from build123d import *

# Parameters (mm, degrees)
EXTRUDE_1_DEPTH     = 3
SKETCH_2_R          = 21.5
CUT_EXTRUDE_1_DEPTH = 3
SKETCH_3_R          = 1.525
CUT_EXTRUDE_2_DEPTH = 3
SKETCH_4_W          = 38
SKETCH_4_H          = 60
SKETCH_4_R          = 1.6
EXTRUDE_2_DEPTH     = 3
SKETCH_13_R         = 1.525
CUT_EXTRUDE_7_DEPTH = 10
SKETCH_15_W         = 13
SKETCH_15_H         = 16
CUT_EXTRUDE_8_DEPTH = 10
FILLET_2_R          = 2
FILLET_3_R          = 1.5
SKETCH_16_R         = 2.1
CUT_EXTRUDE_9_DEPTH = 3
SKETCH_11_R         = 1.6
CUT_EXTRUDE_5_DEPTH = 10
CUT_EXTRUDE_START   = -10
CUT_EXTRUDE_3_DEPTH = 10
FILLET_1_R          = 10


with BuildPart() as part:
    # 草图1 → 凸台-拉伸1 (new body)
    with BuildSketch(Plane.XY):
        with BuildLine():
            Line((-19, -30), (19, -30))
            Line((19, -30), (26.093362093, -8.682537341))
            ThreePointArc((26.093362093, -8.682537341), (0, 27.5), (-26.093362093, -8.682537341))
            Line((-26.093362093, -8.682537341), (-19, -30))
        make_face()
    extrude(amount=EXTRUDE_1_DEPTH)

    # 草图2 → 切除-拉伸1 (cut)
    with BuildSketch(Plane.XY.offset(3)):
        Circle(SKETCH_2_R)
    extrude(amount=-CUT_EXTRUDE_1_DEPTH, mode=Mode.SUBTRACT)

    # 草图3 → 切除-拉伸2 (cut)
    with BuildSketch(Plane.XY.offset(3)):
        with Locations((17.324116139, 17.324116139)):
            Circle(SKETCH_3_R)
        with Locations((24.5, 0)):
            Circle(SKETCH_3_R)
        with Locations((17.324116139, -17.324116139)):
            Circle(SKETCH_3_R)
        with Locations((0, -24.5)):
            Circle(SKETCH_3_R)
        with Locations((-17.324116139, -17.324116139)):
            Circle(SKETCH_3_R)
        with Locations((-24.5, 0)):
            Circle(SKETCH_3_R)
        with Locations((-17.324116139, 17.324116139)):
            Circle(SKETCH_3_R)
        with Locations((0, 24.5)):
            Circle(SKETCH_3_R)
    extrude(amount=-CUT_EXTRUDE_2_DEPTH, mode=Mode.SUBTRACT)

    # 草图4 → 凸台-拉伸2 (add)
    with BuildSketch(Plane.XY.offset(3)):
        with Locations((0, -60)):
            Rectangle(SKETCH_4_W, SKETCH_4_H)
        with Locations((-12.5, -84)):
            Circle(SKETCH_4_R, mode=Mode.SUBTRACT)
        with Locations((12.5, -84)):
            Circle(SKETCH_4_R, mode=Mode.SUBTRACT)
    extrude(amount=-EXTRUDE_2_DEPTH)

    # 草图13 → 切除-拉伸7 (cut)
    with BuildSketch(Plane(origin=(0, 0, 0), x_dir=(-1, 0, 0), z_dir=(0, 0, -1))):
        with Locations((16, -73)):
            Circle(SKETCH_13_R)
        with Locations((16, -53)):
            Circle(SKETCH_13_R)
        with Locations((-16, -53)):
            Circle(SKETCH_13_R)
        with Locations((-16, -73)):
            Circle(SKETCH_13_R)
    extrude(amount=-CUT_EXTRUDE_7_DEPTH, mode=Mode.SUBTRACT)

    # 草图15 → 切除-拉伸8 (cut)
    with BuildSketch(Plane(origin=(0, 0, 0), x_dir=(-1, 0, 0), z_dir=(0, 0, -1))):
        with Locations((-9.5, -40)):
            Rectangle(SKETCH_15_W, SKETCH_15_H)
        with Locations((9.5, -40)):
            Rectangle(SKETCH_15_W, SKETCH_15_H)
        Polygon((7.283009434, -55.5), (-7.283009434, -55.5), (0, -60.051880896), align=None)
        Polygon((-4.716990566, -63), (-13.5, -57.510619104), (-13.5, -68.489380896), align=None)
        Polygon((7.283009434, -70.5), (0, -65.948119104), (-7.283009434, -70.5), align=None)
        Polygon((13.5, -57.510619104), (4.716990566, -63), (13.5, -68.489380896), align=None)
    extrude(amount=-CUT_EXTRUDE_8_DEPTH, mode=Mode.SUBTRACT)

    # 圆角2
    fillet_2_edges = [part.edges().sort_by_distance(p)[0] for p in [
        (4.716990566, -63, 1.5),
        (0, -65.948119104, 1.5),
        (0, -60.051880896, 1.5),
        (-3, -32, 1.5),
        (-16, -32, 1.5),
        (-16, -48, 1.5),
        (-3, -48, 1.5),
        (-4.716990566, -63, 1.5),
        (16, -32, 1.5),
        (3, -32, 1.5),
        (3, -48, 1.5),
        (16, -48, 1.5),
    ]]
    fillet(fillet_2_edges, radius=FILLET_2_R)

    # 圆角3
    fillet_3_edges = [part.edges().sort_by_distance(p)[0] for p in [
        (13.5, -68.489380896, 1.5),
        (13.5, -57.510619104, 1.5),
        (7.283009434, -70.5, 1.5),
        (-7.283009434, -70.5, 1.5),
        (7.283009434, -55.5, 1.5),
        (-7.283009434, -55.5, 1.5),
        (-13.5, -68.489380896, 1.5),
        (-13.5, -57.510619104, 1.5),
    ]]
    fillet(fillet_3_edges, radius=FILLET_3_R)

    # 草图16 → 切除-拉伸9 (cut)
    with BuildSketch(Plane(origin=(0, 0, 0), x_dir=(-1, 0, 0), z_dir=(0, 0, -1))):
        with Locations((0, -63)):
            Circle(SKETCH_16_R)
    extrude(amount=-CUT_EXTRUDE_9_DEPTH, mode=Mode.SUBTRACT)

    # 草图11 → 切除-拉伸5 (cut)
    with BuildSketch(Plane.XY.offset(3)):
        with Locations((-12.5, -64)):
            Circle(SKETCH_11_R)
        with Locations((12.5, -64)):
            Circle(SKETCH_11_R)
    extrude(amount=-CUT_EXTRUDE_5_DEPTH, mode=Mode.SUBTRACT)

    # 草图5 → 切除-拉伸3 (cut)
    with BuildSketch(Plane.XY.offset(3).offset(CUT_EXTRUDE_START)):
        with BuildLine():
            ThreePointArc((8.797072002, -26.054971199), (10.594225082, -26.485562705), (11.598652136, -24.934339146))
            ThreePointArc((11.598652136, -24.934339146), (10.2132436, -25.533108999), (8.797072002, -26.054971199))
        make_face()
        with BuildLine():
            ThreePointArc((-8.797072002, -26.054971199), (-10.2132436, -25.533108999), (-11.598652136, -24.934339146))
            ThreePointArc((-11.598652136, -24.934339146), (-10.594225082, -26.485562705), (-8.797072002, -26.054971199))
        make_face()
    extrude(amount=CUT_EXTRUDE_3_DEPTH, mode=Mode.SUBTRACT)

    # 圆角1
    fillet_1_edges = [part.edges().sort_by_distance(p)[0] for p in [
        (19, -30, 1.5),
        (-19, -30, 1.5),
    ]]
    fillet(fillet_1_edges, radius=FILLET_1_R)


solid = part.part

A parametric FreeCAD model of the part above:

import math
import FreeCAD as App
import Part
import Sketcher
from FreeCAD import Vector


def edges_at(feature, points):
    """Names of the edges that pass closest to the given points."""
    edges = feature.Shape.Edges
    near = lambda p: min(range(len(edges)), key=lambda i: edges[i].distToShape(Part.Vertex(*p))[0])
    return sorted({f"Edge{near(p) + 1}" for p in points})

doc = App.newDocument("Part")
body = doc.addObject("PartDesign::Body", "Body")

sketch1 = doc.addObject("Sketcher::SketchObject", "Sketch")
body.addObject(sketch1)
sketch1.AttachmentSupport = (doc.XY_Plane, [""])
sketch1.MapMode = "FlatFace"
sketch1.addGeometry([
    Part.LineSegment(Vector(-19, -30, 0), Vector(19, -30, 0)),
    Part.LineSegment(Vector(19, -30, 0), Vector(26, -9, 0)),
    Part.ArcOfCircle(Part.Circle(Vector(0, 0, 0), Vector(0, 0, 1), 28), math.radians(-18), math.radians(198)),
    Part.LineSegment(Vector(-26, -9, 0), Vector(-19, -30, 0)),
], False)
sketch1.addConstraint([
    Sketcher.Constraint("Coincident", 0, 2, 1, 1),
    Sketcher.Constraint("Tangent", 1, 2, 2, 1),
    Sketcher.Constraint("Tangent", 2, 2, 3, 1),
    Sketcher.Constraint("Coincident", 3, 2, 0, 1),
    Sketcher.Constraint("Horizontal", 0),
    Sketcher.Constraint("Coincident", 2, 3, -1, 1),
    Sketcher.Constraint("Horizontal", 1, 2, 2, 2),
    Sketcher.Constraint("Radius", 2, 27.5),
    Sketcher.Constraint("DistanceX", 0, 1, 0, 2, 38.0),
    Sketcher.Constraint("DistanceY", 0, 2, -1, 1, 30.0),
])
pad1 = doc.addObject("PartDesign::Pad", "Pad")
body.addObject(pad1)
pad1.Profile = sketch1
pad1.Length = 3

sketch2 = doc.addObject("Sketcher::SketchObject", "Sketch001")
body.addObject(sketch2)
sketch2.AttachmentSupport = (doc.XY_Plane, [""])
sketch2.MapMode = "FlatFace"
sketch2.AttachmentOffset = App.Placement(Vector(0, 0, 3), App.Rotation())
sketch2.addGeometry(Part.Circle(Vector(0, 0, 0), Vector(0, 0, 1), 22), False)
sketch2.addConstraint([
    Sketcher.Constraint("Coincident", 0, 3, -1, 1),
    Sketcher.Constraint("Diameter", 0, 43.0),
])
pocket1 = doc.addObject("PartDesign::Pocket", "Pocket")
body.addObject(pocket1)
pocket1.Profile = sketch2
pocket1.Length = 3

sketch3 = doc.addObject("Sketcher::SketchObject", "Sketch002")
body.addObject(sketch3)
sketch3.AttachmentSupport = (doc.XY_Plane, [""])
sketch3.MapMode = "FlatFace"
sketch3.AttachmentOffset = App.Placement(Vector(0, 0, 3), App.Rotation())
sketch3.addGeometry([
    Part.Circle(Vector(17.3, 17.3, 0), Vector(0, 0, 1), 1.5),
    Part.Circle(Vector(24.5, 0, 0), Vector(0, 0, 1), 1.5),
    Part.Circle(Vector(17.3, -17.3, 0), Vector(0, 0, 1), 1.5),
    Part.Circle(Vector(0, -24.5, 0), Vector(0, 0, 1), 1.5),
    Part.Circle(Vector(-17.3, -17.3, 0), Vector(0, 0, 1), 1.5),
    Part.Circle(Vector(-24.5, 0, 0), Vector(0, 0, 1), 1.5),
    Part.Circle(Vector(-17.3, 17.3, 0), Vector(0, 0, 1), 1.5),
    Part.Circle(Vector(0, 24.5, 0), Vector(0, 0, 1), 1.5),
], False)
sketch3.addConstraint([
    Sketcher.Constraint("Equal", 0, 1),
    Sketcher.Constraint("Equal", 1, 2),
    Sketcher.Constraint("Equal", 2, 3),
    Sketcher.Constraint("Equal", 3, 4),
    Sketcher.Constraint("Equal", 4, 5),
    Sketcher.Constraint("Equal", 5, 6),
    Sketcher.Constraint("Equal", 6, 7),
    Sketcher.Constraint("Symmetric", 0, 3, 4, 3, -1, 1),
    Sketcher.Constraint("Symmetric", 1, 3, 5, 3, -1, 1),
    Sketcher.Constraint("Symmetric", 2, 3, 6, 3, -1, 1),
    Sketcher.Constraint("Symmetric", 3, 3, 7, 3, -1, 1),
    Sketcher.Constraint("Symmetric", 2, 3, 4, 3, -2),
    Sketcher.Constraint("PointOnObject", 1, 3, -1),
    Sketcher.Constraint("PointOnObject", 3, 3, -2),
    Sketcher.Constraint("Diameter", 0, 3.05),
    Sketcher.Constraint("DistanceX", 5, 3, 1, 3, 49.0),
    Sketcher.Constraint("DistanceY", 3, 3, -1, 1, 24.5),
    Sketcher.Constraint("DistanceX", -1, 1, 0, 3, 17.324116),
    Sketcher.Constraint("DistanceY", -1, 1, 0, 3, 17.324116),
])
pocket2 = doc.addObject("PartDesign::Pocket", "Pocket001")
body.addObject(pocket2)
pocket2.Profile = sketch3
pocket2.Length = 3

sketch4 = doc.addObject("Sketcher::SketchObject", "Sketch003")
body.addObject(sketch4)
sketch4.AttachmentSupport = (doc.XY_Plane, [""])
sketch4.MapMode = "FlatFace"
sketch4.AttachmentOffset = App.Placement(Vector(0, 0, 3), App.Rotation())
sketch4.addGeometry([
    Part.LineSegment(Vector(-19, -30, 0), Vector(-19, -90, 0)),
    Part.LineSegment(Vector(-19, -90, 0), Vector(19, -90, 0)),
    Part.LineSegment(Vector(19, -90, 0), Vector(19, -30, 0)),
    Part.LineSegment(Vector(19, -30, 0), Vector(-19, -30, 0)),
    Part.Circle(Vector(-12.5, -84, 0), Vector(0, 0, 1), 1.6),
    Part.Circle(Vector(12.5, -84, 0), Vector(0, 0, 1), 1.6),
], False)
sketch4.addConstraint([
    Sketcher.Constraint("Coincident", 0, 2, 1, 1),
    Sketcher.Constraint("Coincident", 1, 2, 2, 1),
    Sketcher.Constraint("Coincident", 2, 2, 3, 1),
    Sketcher.Constraint("Coincident", 3, 2, 0, 1),
    Sketcher.Constraint("Vertical", 0),
    Sketcher.Constraint("Horizontal", 1),
    Sketcher.Constraint("Vertical", 2),
    Sketcher.Constraint("Horizontal", 3),
    Sketcher.Constraint("Equal", 4, 5),
    Sketcher.Constraint("Symmetric", 4, 3, 5, 3, -2),
    Sketcher.Constraint("Diameter", 4, 3.2),
    Sketcher.Constraint("DistanceX", 1, 1, 1, 2, 38.0),
    Sketcher.Constraint("DistanceY", 0, 2, 0, 1, 60.0),
    Sketcher.Constraint("DistanceY", 4, 3, -1, 1, 84.0),
    Sketcher.Constraint("DistanceX", 0, 2, -1, 1, 19.0),
    Sketcher.Constraint("DistanceY", 0, 2, -1, 1, 90.0),
    Sketcher.Constraint("DistanceX", 4, 3, 5, 3, 25.0),
])
pad2 = doc.addObject("PartDesign::Pad", "Pad001")
body.addObject(pad2)
pad2.Profile = sketch4
pad2.Length = 3
pad2.Reversed = True

sketch5 = doc.addObject("Sketcher::SketchObject", "Sketch004")
body.addObject(sketch5)
sketch5.AttachmentSupport = (doc.XY_Plane, [""])
sketch5.MapMode = "FlatFace"
sketch5.addGeometry([
    Part.Circle(Vector(-16, -73, 0), Vector(0, 0, 1), 1.5),
    Part.Circle(Vector(-16, -53, 0), Vector(0, 0, 1), 1.5),
    Part.Circle(Vector(16, -53, 0), Vector(0, 0, 1), 1.5),
    Part.Circle(Vector(16, -73, 0), Vector(0, 0, 1), 1.5),
], False)
sketch5.addConstraint([
    Sketcher.Constraint("Equal", 0, 1),
    Sketcher.Constraint("Equal", 1, 2),
    Sketcher.Constraint("Equal", 2, 3),
    Sketcher.Constraint("Symmetric", 1, 3, 2, 3, -2),
    Sketcher.Constraint("Symmetric", 0, 3, 3, 3, -2),
    Sketcher.Constraint("Vertical", 0, 3, 1, 3),
    Sketcher.Constraint("Diameter", 0, 3.05),
    Sketcher.Constraint("DistanceX", 0, 3, -1, 1, 16.0),
    Sketcher.Constraint("DistanceY", 0, 3, -1, 1, 73.0),
    Sketcher.Constraint("DistanceY", 1, 3, -1, 1, 53.0),
])
pocket3 = doc.addObject("PartDesign::Pocket", "Pocket002")
body.addObject(pocket3)
pocket3.Profile = sketch5
pocket3.Length = 10
pocket3.Reversed = True

sketch6 = doc.addObject("Sketcher::SketchObject", "Sketch005")
body.addObject(sketch6)
sketch6.AttachmentSupport = (doc.XY_Plane, [""])
sketch6.MapMode = "FlatFace"
sketch6.addGeometry([
    Part.LineSegment(Vector(16, -32, 0), Vector(16, -48, 0)),
    Part.LineSegment(Vector(16, -48, 0), Vector(3, -48, 0)),
    Part.LineSegment(Vector(3, -48, 0), Vector(3, -32, 0)),
    Part.LineSegment(Vector(3, -32, 0), Vector(16, -32, 0)),
    Part.LineSegment(Vector(-3, -32, 0), Vector(-3, -48, 0)),
    Part.LineSegment(Vector(-3, -48, 0), Vector(-16, -48, 0)),
    Part.LineSegment(Vector(-16, -48, 0), Vector(-16, -32, 0)),
    Part.LineSegment(Vector(-16, -32, 0), Vector(-3, -32, 0)),
    Part.LineSegment(Vector(-7, -56, 0), Vector(7, -56, 0)),
    Part.LineSegment(Vector(7, -56, 0), Vector(0, -60, 0)),
    Part.LineSegment(Vector(0, -60, 0), Vector(-7, -56, 0)),
    Part.LineSegment(Vector(5, -63, 0), Vector(14, -58, 0)),
    Part.LineSegment(Vector(14, -58, 0), Vector(14, -68, 0)),
    Part.LineSegment(Vector(14, -68, 0), Vector(5, -63, 0)),
    Part.LineSegment(Vector(-7, -70, 0), Vector(0, -66, 0)),
    Part.LineSegment(Vector(0, -66, 0), Vector(7, -70, 0)),
    Part.LineSegment(Vector(7, -70, 0), Vector(-7, -70, 0)),
    Part.LineSegment(Vector(-14, -58, 0), Vector(-5, -63, 0)),
    Part.LineSegment(Vector(-5, -63, 0), Vector(-14, -68, 0)),
    Part.LineSegment(Vector(-14, -68, 0), Vector(-14, -58, 0)),
], False)
sketch6.addConstraint([
    Sketcher.Constraint("Coincident", 0, 2, 1, 1),
    Sketcher.Constraint("Coincident", 1, 2, 2, 1),
    Sketcher.Constraint("Coincident", 2, 2, 3, 1),
    Sketcher.Constraint("Coincident", 3, 2, 0, 1),
    Sketcher.Constraint("Coincident", 4, 2, 5, 1),
    Sketcher.Constraint("Coincident", 5, 2, 6, 1),
    Sketcher.Constraint("Coincident", 6, 2, 7, 1),
    Sketcher.Constraint("Coincident", 7, 2, 4, 1),
    Sketcher.Constraint("Coincident", 8, 2, 9, 1),
    Sketcher.Constraint("Coincident", 9, 2, 10, 1),
    Sketcher.Constraint("Coincident", 10, 2, 8, 1),
    Sketcher.Constraint("Coincident", 11, 2, 12, 1),
    Sketcher.Constraint("Coincident", 12, 2, 13, 1),
    Sketcher.Constraint("Coincident", 13, 2, 11, 1),
    Sketcher.Constraint("Coincident", 14, 2, 15, 1),
    Sketcher.Constraint("Coincident", 15, 2, 16, 1),
    Sketcher.Constraint("Coincident", 16, 2, 14, 1),
    Sketcher.Constraint("Coincident", 17, 2, 18, 1),
    Sketcher.Constraint("Coincident", 18, 2, 19, 1),
    Sketcher.Constraint("Coincident", 19, 2, 17, 1),
    Sketcher.Constraint("Vertical", 0),
    Sketcher.Constraint("Horizontal", 1),
    Sketcher.Constraint("Vertical", 2),
    Sketcher.Constraint("Horizontal", 3),
    Sketcher.Constraint("Vertical", 4),
    Sketcher.Constraint("Horizontal", 5),
    Sketcher.Constraint("Vertical", 6),
    Sketcher.Constraint("Horizontal", 7),
    Sketcher.Constraint("Horizontal", 8),
    Sketcher.Constraint("Vertical", 12),
    Sketcher.Constraint("Horizontal", 16),
    Sketcher.Constraint("Vertical", 19),
    Sketcher.Constraint("Symmetric", 1, 2, 4, 2, -2),
    Sketcher.Constraint("Symmetric", 3, 2, 6, 2, -2),
    Sketcher.Constraint("Symmetric", 13, 2, 17, 2, -2),
    Sketcher.Constraint("Symmetric", 12, 2, 18, 2, -2),
    Sketcher.Constraint("PointOnObject", 9, 2, -2),
    Sketcher.Constraint("PointOnObject", 14, 2, -2),
    Sketcher.Constraint("Parallel", 9, 11),
    Sketcher.Constraint("Parallel", 10, 13),
    Sketcher.Constraint("Parallel", 11, 14),
    Sketcher.Constraint("Parallel", 13, 15),
    Sketcher.Constraint("Parallel", 15, 17),
    Sketcher.Constraint("Parallel", 14, 18),
    Sketcher.Constraint("Vertical", 8, 2, 15, 2),
    Sketcher.Constraint("DistanceX", 1, 2, 1, 1, 13.0),
    Sketcher.Constraint("DistanceY", 0, 2, 0, 1, 16.0),
    Sketcher.Constraint("DistanceX", -1, 1, 0, 2, 16.0),
    Sketcher.Constraint("DistanceY", 0, 2, -1, 1, 48.0),
    Sketcher.Constraint("DistanceY", 13, 2, -1, 1, 63.0),
    Sketcher.Constraint("DistanceX", 10, 2, 13, 2, 12.0),
    Sketcher.Constraint("DistanceY", 16, 2, 10, 2, 15.0),
    Sketcher.Constraint("DistanceY", 8, 2, -1, 1, 55.5),
    Sketcher.Constraint("DistanceX", -1, 1, 11, 2, 13.5),
    Sketcher.Constraint("DistanceX", 8, 1, 8, 2, 14.566019),
    Sketcher.Constraint("DistanceY", 12, 2, 12, 1, 10.978762),
])
pocket4 = doc.addObject("PartDesign::Pocket", "Pocket003")
body.addObject(pocket4)
pocket4.Profile = sketch6
pocket4.Length = 10
pocket4.Reversed = True
doc.recompute()

fillet = doc.addObject("PartDesign::Fillet", "Fillet")
body.addObject(fillet)
fillet.Base = (pocket4, edges_at(pocket4, [
    (4.717, -63, 1.5),
    (0, -65.948, 1.5),
    (0, -60.052, 1.5),
    (-3, -32, 1.5),
    (-16, -32, 1.5),
    (-16, -48, 1.5),
    (-3, -48, 1.5),
    (-4.717, -63, 1.5),
    (16, -32, 1.5),
    (3, -32, 1.5),
    (3, -48, 1.5),
    (16, -48, 1.5),
]))
fillet.Radius = 2
doc.recompute()

fillet2 = doc.addObject("PartDesign::Fillet", "Fillet001")
body.addObject(fillet2)
fillet2.Base = (fillet, edges_at(fillet, [
    (13.5, -68.489, 1.5),
    (13.5, -57.511, 1.5),
    (7.283, -70.5, 1.5),
    (-7.283, -70.5, 1.5),
    (7.283, -55.5, 1.5),
    (-7.283, -55.5, 1.5),
    (-13.5, -68.489, 1.5),
    (-13.5, -57.511, 1.5),
]))
fillet2.Radius = 1.5

sketch7 = doc.addObject("Sketcher::SketchObject", "Sketch006")
body.addObject(sketch7)
sketch7.AttachmentSupport = (doc.XY_Plane, [""])
sketch7.MapMode = "FlatFace"
sketch7.addGeometry(Part.Circle(Vector(0, -63, 0), Vector(0, 0, 1), 2.1), False)
sketch7.addConstraint([
    Sketcher.Constraint("PointOnObject", 0, 3, -2),
    Sketcher.Constraint("Diameter", 0, 4.2),
    Sketcher.Constraint("DistanceY", 0, 3, -1, 1, 63.0),
])
pocket5 = doc.addObject("PartDesign::Pocket", "Pocket004")
body.addObject(pocket5)
pocket5.Profile = sketch7
pocket5.Length = 3
pocket5.Reversed = True

sketch8 = doc.addObject("Sketcher::SketchObject", "Sketch007")
body.addObject(sketch8)
sketch8.AttachmentSupport = (doc.XY_Plane, [""])
sketch8.MapMode = "FlatFace"
sketch8.AttachmentOffset = App.Placement(Vector(0, 0, 3), App.Rotation())
sketch8.addGeometry([
    Part.Circle(Vector(-12.5, -64, 0), Vector(0, 0, 1), 1.6),
    Part.Circle(Vector(12.5, -64, 0), Vector(0, 0, 1), 1.6),
], False)
sketch8.addConstraint([
    Sketcher.Constraint("Equal", 0, 1),
    Sketcher.Constraint("Symmetric", 0, 3, 1, 3, -2),
    Sketcher.Constraint("Diameter", 0, 3.2),
    Sketcher.Constraint("DistanceY", 0, 3, -1, 1, 64.0),
    Sketcher.Constraint("DistanceX", 0, 3, 1, 3, 25.0),
])
pocket6 = doc.addObject("PartDesign::Pocket", "Pocket005")
body.addObject(pocket6)
pocket6.Profile = sketch8
pocket6.Length = 10

sketch9 = doc.addObject("Sketcher::SketchObject", "Sketch008")
body.addObject(sketch9)
sketch9.AttachmentSupport = (doc.XY_Plane, [""])
sketch9.MapMode = "FlatFace"
sketch9.AttachmentOffset = App.Placement(Vector(0, 0, -7), App.Rotation())
sketch9.addGeometry([
    Part.ArcOfCircle(Part.Circle(Vector(10, -25, 0), Vector(0, 0, 1), 1.6), math.radians(-139), math.radians(2)),
    Part.ArcOfCircle(Part.Circle(Vector(0, 0, 0), Vector(0, 0, 1), 27.5), math.radians(-71.34), math.radians(-65.05)),
    Part.ArcOfCircle(Part.Circle(Vector(0, 0, 0), Vector(0, 0, 1), 27.5), math.radians(-114.95), math.radians(-108.66)),
    Part.ArcOfCircle(Part.Circle(Vector(-10, -25, 0), Vector(0, 0, 1), 1.6), math.radians(178), math.radians(319)),
], False)
sketch9.addConstraint([
    Sketcher.Constraint("Coincident", 0, 1, 1, 1),
    Sketcher.Constraint("Coincident", 1, 2, 0, 2),
    Sketcher.Constraint("Coincident", 2, 1, 3, 1),
    Sketcher.Constraint("Coincident", 3, 2, 2, 2),
    Sketcher.Constraint("Coincident", 1, 3, -1, 1),
    Sketcher.Constraint("Coincident", 2, 3, -1, 1),
    Sketcher.Constraint("Equal", 1, 2),
    Sketcher.Constraint("Equal", 0, 3),
    Sketcher.Constraint("Symmetric", 0, 3, 3, 3, -2),
    Sketcher.Constraint("Radius", 0, 1.6),
    Sketcher.Constraint("Radius", 1, 27.5),
    Sketcher.Constraint("DistanceX", -1, 1, 0, 3, 10.0),
    Sketcher.Constraint("DistanceY", 0, 3, -1, 1, 25.0),
])
pocket7 = doc.addObject("PartDesign::Pocket", "Pocket006")
body.addObject(pocket7)
pocket7.Profile = sketch9
pocket7.Length = 10
pocket7.Reversed = True
doc.recompute()

fillet3 = doc.addObject("PartDesign::Fillet", "Fillet002")
body.addObject(fillet3)
fillet3.Base = (pocket7, edges_at(pocket7, [(19, -30, 1.5), (-19, -30, 1.5)]))
fillet3.Radius = 10

doc.recompute()
